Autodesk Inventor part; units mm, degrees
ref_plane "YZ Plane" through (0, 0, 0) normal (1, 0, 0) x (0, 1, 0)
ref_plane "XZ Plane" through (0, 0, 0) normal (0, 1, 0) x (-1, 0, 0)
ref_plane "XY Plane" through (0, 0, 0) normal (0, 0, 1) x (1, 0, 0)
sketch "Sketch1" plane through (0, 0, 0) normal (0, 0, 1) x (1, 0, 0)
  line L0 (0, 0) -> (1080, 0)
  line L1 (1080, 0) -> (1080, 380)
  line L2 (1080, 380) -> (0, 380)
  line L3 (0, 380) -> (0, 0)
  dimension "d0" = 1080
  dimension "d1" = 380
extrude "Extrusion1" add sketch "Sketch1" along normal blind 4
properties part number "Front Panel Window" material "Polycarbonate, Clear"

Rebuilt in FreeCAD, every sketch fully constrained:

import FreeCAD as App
import Part
import Sketcher


def add_polygon(sketch, points):
    """Adds a closed chain of lines whose ends are joined by coincident constraints."""
    first, n = sketch.GeometryCount, len(points)
    for a, b in zip(points, points[1:] + points[:1]):
        sketch.addGeometry(Part.LineSegment(App.Vector(*a, 0), App.Vector(*b, 0)), False)
    for i in range(n):
        sketch.addConstraint(Sketcher.Constraint("Coincident", first + i, 2, first + (i + 1) % n, 1))

doc = App.newDocument("Part")
body = doc.addObject("PartDesign::Body", "Body")

# Sketch on XY plane
sketch1 = doc.addObject("Sketcher::SketchObject", "Sketch")
body.addObject(sketch1)
sketch1.AttachmentSupport = (doc.XY_Plane, [""])
sketch1.MapMode = "FlatFace"
add_polygon(sketch1, [(0, 380), (0, 0), (1080, 0), (1080, 380)])  # lines 0-3
sketch1.addConstraint([
    Sketcher.Constraint("Vertical", 0),
    Sketcher.Constraint("Horizontal", 1),
    Sketcher.Constraint("Vertical", 2),
    Sketcher.Constraint("Horizontal", 3),
    Sketcher.Constraint("Coincident", 0, 2, -1, 1),
    Sketcher.Constraint("DistanceX", 1, 1, 1, 2, 1080.0),
    Sketcher.Constraint("DistanceY", 0, 2, 0, 1, 380.0),
])
pad1 = doc.addObject("PartDesign::Pad", "Pad")
body.addObject(pad1)
pad1.Profile = sketch1
pad1.Length = 4

doc.recompute()
